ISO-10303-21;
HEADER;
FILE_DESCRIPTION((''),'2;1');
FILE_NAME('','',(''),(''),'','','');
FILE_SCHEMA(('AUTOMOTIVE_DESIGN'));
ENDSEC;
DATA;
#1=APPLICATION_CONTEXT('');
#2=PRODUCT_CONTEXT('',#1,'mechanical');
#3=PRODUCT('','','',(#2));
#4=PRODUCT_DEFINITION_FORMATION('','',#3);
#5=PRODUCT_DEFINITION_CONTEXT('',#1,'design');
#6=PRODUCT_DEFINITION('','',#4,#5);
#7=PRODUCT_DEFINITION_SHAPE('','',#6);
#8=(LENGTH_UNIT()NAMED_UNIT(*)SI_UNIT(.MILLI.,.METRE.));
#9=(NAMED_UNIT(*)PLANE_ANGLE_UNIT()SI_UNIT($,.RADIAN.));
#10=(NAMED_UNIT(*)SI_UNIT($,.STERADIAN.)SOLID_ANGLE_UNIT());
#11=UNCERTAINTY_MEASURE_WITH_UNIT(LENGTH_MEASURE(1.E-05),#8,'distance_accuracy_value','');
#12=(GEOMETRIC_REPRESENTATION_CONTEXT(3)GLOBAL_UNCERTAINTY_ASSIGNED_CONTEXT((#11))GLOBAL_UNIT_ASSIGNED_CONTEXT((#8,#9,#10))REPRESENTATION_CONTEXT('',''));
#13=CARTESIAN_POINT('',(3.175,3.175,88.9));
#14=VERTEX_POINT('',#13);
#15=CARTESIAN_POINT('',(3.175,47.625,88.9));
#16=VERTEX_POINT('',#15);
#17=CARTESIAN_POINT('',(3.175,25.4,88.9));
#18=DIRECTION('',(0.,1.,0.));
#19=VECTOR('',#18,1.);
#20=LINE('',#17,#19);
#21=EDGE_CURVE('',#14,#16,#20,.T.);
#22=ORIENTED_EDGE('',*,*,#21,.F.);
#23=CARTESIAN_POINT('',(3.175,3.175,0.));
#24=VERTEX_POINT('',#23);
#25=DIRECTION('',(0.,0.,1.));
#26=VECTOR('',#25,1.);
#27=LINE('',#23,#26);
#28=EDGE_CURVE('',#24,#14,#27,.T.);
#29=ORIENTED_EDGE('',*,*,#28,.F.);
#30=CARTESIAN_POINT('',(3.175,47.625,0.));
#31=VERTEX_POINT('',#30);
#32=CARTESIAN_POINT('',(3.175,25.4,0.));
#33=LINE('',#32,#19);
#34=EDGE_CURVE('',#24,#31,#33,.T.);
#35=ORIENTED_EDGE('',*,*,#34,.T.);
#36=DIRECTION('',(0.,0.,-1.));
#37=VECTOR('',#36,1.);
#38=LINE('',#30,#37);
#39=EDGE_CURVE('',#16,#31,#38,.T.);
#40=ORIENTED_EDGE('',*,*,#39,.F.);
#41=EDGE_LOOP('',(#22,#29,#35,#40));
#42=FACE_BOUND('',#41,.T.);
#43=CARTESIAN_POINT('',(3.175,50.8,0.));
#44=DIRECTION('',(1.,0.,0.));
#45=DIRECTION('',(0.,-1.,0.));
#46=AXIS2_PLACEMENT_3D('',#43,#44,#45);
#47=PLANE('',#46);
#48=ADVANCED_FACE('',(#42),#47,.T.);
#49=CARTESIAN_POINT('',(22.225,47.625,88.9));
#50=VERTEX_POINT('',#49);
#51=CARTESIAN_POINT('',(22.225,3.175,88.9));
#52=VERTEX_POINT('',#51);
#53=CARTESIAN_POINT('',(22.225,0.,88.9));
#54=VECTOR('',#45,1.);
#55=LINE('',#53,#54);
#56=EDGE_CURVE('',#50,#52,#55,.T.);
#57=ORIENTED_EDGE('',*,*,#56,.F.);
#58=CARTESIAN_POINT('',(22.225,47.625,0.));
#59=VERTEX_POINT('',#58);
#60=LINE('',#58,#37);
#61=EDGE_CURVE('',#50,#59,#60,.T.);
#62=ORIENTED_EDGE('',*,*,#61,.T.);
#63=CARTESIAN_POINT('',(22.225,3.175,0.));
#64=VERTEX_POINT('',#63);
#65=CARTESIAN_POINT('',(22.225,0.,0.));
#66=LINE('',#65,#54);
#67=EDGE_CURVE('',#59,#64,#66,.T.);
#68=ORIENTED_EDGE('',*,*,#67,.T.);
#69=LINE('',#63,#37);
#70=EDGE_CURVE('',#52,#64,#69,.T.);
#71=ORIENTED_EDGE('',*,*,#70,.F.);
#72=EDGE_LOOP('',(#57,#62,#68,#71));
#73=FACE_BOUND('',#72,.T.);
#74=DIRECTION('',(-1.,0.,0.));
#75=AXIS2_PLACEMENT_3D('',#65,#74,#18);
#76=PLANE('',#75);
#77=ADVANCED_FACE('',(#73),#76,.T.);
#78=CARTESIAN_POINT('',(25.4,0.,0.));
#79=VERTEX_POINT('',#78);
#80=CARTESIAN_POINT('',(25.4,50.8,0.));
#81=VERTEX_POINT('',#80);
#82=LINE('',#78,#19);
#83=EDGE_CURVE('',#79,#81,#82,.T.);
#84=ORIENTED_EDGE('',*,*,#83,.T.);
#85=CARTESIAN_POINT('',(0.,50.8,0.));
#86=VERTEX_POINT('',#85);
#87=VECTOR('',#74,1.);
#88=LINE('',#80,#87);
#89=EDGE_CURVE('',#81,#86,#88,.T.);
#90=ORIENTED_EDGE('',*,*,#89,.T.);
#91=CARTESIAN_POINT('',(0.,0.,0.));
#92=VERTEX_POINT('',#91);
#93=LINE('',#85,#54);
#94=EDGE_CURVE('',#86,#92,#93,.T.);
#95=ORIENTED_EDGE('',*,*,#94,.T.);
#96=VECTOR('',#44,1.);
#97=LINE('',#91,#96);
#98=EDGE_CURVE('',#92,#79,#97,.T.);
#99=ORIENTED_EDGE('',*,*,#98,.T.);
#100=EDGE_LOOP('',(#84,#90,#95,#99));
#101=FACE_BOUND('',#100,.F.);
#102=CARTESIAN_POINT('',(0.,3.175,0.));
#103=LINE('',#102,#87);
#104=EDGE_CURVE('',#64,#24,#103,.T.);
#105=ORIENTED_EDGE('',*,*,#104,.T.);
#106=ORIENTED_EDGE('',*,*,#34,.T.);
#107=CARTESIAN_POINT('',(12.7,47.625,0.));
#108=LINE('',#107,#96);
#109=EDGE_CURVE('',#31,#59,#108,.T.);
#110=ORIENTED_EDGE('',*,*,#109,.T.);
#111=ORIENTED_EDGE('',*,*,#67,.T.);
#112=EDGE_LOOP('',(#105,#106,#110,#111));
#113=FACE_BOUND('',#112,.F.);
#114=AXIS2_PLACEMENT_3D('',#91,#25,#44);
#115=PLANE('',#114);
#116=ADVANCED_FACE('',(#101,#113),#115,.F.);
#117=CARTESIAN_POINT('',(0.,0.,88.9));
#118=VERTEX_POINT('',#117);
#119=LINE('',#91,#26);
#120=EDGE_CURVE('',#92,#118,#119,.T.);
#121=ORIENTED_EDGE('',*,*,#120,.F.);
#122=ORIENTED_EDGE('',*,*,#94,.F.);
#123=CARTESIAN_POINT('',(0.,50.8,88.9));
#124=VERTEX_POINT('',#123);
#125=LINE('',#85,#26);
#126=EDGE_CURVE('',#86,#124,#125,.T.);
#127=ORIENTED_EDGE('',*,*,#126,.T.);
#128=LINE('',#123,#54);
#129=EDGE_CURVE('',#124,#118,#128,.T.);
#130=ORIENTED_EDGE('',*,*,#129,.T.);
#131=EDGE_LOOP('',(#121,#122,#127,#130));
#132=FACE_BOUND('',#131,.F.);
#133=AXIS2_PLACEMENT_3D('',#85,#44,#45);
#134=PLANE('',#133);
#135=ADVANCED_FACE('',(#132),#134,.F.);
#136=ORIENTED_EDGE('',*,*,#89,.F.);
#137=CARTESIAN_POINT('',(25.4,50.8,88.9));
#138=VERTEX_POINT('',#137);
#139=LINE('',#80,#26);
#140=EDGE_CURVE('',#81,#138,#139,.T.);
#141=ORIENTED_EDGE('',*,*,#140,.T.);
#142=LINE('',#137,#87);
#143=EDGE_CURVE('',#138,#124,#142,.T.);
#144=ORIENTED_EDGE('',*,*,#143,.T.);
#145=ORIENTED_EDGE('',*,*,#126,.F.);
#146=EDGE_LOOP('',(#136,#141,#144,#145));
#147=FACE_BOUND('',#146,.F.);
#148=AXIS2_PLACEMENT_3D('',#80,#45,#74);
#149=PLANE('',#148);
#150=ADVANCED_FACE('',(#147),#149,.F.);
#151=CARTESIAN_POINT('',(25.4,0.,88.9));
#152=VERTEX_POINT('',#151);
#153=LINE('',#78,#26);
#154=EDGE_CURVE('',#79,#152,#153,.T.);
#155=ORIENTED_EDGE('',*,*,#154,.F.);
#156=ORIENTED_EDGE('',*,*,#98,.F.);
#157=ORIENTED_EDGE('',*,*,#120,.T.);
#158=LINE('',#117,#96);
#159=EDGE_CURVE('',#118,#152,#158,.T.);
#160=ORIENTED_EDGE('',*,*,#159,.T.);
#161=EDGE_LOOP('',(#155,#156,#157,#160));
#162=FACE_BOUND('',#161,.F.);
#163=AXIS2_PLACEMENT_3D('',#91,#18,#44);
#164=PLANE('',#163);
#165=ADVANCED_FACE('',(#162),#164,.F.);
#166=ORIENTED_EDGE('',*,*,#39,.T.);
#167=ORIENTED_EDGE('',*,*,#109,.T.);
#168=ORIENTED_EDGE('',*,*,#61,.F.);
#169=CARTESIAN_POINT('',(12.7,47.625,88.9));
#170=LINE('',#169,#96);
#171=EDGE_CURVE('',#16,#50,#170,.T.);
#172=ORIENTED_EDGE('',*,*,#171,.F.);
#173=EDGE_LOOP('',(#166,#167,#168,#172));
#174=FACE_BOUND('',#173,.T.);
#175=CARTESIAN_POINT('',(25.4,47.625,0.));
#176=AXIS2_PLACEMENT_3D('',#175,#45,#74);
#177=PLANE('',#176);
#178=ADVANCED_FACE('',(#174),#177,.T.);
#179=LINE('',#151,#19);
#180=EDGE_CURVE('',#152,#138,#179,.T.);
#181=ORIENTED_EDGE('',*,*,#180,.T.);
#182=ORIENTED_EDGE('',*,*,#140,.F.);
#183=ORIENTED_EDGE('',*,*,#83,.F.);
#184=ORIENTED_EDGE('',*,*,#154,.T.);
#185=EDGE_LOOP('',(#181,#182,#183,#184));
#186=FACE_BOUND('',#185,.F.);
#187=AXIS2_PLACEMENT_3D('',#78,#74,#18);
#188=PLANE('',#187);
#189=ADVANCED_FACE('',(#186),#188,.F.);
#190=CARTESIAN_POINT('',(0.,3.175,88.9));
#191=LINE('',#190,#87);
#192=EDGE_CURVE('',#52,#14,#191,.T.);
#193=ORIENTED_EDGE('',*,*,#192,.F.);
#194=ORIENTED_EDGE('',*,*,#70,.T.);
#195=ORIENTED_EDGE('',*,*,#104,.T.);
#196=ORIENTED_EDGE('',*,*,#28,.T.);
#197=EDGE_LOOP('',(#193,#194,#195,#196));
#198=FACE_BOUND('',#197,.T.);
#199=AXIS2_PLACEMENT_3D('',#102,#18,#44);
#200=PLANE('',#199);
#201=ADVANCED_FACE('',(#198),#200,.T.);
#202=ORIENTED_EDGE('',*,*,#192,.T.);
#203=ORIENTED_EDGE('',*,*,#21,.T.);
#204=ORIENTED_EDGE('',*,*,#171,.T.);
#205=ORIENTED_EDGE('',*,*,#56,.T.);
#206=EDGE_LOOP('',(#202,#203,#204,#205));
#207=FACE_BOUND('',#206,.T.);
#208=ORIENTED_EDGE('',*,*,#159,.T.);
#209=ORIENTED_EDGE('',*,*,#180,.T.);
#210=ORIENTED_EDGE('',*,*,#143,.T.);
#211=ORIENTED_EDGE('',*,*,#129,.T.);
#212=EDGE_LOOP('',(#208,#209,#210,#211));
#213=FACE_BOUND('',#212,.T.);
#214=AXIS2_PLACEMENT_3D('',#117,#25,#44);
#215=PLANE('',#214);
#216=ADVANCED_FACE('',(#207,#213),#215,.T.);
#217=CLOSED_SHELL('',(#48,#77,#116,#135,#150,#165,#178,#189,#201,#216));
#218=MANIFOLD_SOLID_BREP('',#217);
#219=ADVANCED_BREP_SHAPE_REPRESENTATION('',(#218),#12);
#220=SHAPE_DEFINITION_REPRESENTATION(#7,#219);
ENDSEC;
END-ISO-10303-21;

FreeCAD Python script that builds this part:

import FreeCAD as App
import Part
import Sketcher
from FreeCAD import Vector
Q = App.Units.Quantity


def faces_at(feature, points):
    """Names of the faces that lie closest to the given points."""
    faces = feature.Shape.Faces
    near = lambda p: min(range(len(faces)), key=lambda i: faces[i].distToShape(Part.Vertex(*p))[0])
    return sorted({f"Face{near(p) + 1}" for p in points})

doc = App.newDocument("Part")
body = doc.addObject("PartDesign::Body", "Body")

sketch1 = body.newObject("Sketcher::SketchObject", "Sketch")
sketch1.AttachmentSupport = (doc.getObject("XY_Plane"), [""])
sketch1.MapMode = "FlatFace"
sketch1.addGeometry(Part.LineSegment(Vector(0, 51, 0), Vector(0, 0, 0)), False)
sketch1.addGeometry(Part.LineSegment(Vector(0, 0, 0), Vector(25, 0, 0)), False)
sketch1.addGeometry(Part.LineSegment(Vector(25, 0, 0), Vector(25, 51, 0)), False)
sketch1.addGeometry(Part.LineSegment(Vector(25, 51, 0), Vector(0, 51, 0)), False)
sketch1.addConstraint(Sketcher.Constraint("Coincident", 0, 2, 1, 1))
sketch1.addConstraint(Sketcher.Constraint("Coincident", 1, 2, 2, 1))
sketch1.addConstraint(Sketcher.Constraint("Coincident", 2, 2, 3, 1))
sketch1.addConstraint(Sketcher.Constraint("Coincident", 3, 2, 0, 1))
sketch1.addConstraint(Sketcher.Constraint("Vertical", 0))
sketch1.addConstraint(Sketcher.Constraint("Horizontal", 1))
sketch1.addConstraint(Sketcher.Constraint("Vertical", 2))
sketch1.addConstraint(Sketcher.Constraint("Horizontal", 3))
sketch1.addConstraint(Sketcher.Constraint("Coincident", 0, 2, -1, 1))
sketch1.addConstraint(Sketcher.Constraint("DistanceX", 1, 1, 1, 2, Q("1 in")))
sketch1.addConstraint(Sketcher.Constraint("DistanceY", 0, 2, 0, 1, Q("2 in")))
pad1 = body.newObject("PartDesign::Pad", "Pad")
pad1.Profile = sketch1
pad1.Length = Q("3.5 in")
doc.recompute()

thickness = body.newObject("PartDesign::Thickness", "Thickness")
thickness.Base = (pad1, faces_at(pad1, [(8.467, 33.867, 0), (8.467, 33.867, 88.9)]))
thickness.Value = Q("0.125 in")
thickness.Reversed = True
thickness.Join = "Intersection"

doc.recompute()
